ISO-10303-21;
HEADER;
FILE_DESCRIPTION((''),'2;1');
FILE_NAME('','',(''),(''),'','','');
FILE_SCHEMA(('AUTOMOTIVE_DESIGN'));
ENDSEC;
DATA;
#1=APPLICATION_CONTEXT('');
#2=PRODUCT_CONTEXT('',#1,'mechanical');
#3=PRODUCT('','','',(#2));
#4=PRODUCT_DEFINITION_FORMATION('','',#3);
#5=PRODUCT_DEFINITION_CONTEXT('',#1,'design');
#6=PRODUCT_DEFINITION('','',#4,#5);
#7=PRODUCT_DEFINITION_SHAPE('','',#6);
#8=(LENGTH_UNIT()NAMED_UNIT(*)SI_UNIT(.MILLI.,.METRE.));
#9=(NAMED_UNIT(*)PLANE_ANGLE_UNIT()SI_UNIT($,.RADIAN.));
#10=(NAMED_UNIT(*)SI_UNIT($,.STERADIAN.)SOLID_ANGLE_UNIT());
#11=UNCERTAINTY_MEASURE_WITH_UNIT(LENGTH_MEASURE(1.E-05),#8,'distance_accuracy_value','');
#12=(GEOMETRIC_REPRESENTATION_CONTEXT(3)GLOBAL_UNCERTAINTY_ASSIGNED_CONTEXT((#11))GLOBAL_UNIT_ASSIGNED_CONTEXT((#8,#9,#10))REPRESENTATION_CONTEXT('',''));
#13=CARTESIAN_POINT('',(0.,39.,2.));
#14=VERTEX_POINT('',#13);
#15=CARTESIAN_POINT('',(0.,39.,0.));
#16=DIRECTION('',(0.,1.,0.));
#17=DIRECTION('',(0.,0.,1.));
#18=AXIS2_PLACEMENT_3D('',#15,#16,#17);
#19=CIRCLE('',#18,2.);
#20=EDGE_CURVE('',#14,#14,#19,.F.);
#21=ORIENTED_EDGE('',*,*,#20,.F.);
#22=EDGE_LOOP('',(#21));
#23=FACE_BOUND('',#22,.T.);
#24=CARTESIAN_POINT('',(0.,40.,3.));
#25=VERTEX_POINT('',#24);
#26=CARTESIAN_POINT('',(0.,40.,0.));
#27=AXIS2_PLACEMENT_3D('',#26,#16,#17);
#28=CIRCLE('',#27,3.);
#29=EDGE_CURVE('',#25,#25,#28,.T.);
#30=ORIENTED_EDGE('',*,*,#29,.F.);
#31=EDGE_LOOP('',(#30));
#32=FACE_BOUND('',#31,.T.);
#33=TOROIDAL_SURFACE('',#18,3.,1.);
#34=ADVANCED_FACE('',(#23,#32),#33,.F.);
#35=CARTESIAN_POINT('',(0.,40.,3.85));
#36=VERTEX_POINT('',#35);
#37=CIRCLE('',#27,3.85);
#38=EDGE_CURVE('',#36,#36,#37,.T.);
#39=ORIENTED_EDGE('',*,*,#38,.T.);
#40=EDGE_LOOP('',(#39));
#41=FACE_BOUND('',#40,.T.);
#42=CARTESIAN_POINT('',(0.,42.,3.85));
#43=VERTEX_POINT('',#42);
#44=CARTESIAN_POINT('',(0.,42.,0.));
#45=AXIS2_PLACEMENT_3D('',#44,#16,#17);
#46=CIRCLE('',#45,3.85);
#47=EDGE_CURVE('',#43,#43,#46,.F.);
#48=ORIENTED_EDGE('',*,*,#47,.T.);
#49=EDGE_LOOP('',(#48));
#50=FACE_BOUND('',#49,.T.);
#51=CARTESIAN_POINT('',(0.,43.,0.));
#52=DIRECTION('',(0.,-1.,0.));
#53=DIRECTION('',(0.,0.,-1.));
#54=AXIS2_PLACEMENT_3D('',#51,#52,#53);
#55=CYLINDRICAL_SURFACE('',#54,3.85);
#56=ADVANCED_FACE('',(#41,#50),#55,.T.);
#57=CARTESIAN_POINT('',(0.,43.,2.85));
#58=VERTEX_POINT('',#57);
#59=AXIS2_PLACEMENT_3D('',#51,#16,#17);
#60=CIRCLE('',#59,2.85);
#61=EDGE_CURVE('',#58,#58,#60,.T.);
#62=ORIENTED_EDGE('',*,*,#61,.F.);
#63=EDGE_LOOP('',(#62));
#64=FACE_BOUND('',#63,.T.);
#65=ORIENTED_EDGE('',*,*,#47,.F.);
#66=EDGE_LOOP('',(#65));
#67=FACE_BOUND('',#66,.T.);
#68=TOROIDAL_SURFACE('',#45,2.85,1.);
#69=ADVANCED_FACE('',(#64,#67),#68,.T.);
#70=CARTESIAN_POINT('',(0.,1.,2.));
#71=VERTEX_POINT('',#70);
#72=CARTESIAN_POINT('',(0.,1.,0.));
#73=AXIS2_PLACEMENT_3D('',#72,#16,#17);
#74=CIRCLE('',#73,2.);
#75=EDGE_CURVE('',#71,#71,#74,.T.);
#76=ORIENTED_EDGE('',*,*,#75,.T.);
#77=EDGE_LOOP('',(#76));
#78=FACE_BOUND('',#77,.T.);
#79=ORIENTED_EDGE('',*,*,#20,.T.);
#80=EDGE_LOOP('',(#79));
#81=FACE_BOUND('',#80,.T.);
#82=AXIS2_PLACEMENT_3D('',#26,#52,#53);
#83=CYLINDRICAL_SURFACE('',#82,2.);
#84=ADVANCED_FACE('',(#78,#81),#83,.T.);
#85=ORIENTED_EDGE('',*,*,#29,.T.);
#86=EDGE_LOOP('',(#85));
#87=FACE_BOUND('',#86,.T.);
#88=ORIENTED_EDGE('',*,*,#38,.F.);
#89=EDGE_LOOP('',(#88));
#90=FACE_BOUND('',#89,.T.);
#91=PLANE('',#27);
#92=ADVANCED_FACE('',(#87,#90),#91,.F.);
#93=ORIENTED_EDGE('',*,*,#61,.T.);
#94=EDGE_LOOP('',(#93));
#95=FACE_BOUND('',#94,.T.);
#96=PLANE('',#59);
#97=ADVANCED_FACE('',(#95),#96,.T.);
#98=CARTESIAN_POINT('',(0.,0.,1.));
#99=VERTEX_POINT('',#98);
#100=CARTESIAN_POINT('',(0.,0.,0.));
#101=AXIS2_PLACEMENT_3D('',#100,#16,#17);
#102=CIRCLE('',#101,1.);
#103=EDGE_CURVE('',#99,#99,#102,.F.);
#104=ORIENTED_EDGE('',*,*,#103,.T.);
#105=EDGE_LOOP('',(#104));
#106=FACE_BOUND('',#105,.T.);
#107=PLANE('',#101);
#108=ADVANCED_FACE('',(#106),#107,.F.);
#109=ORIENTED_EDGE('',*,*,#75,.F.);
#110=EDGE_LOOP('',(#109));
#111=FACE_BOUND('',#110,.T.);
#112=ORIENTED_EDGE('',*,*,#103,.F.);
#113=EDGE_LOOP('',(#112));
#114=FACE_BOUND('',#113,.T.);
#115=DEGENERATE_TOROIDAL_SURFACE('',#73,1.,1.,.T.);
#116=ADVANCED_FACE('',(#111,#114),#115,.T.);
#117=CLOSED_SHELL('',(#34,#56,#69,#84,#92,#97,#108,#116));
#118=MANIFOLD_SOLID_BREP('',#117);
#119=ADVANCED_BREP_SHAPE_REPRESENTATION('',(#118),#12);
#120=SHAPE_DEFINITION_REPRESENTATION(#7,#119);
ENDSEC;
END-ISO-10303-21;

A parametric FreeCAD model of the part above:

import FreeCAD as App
import Part
import Sketcher

V = App.Vector
Q = App.Units.Quantity


def edges_at(feature, points):
    """Names of the edges that pass closest to the given points."""
    edges = feature.Shape.Edges
    near = lambda p: min(range(len(edges)), key=lambda i: edges[i].distToShape(Part.Vertex(*p))[0])
    return sorted({f"Edge{near(p) + 1}" for p in points})

doc = App.newDocument("Part")
body = doc.addObject("PartDesign::Body", "Body")

# Sketch on XZ plane
sketch1 = body.newObject("Sketcher::SketchObject", "Sketch")
sketch1.AttachmentSupport = (doc.getObject("XZ_Plane"), [""])
sketch1.MapMode = "FlatFace"
sketch1.addGeometry(Part.Circle(V(0, 0, 0), V(0, 0, 1), 2), False)
sketch1.addConstraint([
    Sketcher.Constraint("Coincident", 0, 3, -1, 1),
    Sketcher.Constraint("Diameter", 0, Q("4 mm")),
])
pad1 = body.newObject("PartDesign::Pad", "Pad")
pad1.Profile = sketch1
pad1.Length = 40
pad1.Reversed = True

# Sketch on XZ plane
sketch2 = body.newObject("Sketcher::SketchObject", "Sketch001")
sketch2.AttachmentSupport = (doc.getObject("XZ_Plane"), [""])
sketch2.MapMode = "FlatFace"
sketch2.AttachmentOffset = App.Placement(V(0, 0, -40), App.Rotation())
sketch2.addGeometry(Part.Circle(V(0, 0, 0), V(0, 0, 1), 3.9), False)
sketch2.addConstraint([
    Sketcher.Constraint("Coincident", 0, 3, -1, 1),
    Sketcher.Constraint("Diameter", 0, Q("7.7 mm")),
])
pad2 = body.newObject("PartDesign::Pad", "Pad001")
pad2.Profile = sketch2
pad2.Length = 3
pad2.Reversed = True
doc.recompute()

fillet = body.newObject("PartDesign::Fillet", "Fillet")
fillet.Base = (pad2, edges_at(pad2, [(-3.85, 43, 0)]))
fillet.Radius = 1
doc.recompute()

fillet2 = body.newObject("PartDesign::Fillet", "Fillet001")
fillet2.Base = (fillet, edges_at(fillet, [(-2, 0, 0), (-2, 40, 0)]))
fillet2.Radius = 1

doc.recompute()
